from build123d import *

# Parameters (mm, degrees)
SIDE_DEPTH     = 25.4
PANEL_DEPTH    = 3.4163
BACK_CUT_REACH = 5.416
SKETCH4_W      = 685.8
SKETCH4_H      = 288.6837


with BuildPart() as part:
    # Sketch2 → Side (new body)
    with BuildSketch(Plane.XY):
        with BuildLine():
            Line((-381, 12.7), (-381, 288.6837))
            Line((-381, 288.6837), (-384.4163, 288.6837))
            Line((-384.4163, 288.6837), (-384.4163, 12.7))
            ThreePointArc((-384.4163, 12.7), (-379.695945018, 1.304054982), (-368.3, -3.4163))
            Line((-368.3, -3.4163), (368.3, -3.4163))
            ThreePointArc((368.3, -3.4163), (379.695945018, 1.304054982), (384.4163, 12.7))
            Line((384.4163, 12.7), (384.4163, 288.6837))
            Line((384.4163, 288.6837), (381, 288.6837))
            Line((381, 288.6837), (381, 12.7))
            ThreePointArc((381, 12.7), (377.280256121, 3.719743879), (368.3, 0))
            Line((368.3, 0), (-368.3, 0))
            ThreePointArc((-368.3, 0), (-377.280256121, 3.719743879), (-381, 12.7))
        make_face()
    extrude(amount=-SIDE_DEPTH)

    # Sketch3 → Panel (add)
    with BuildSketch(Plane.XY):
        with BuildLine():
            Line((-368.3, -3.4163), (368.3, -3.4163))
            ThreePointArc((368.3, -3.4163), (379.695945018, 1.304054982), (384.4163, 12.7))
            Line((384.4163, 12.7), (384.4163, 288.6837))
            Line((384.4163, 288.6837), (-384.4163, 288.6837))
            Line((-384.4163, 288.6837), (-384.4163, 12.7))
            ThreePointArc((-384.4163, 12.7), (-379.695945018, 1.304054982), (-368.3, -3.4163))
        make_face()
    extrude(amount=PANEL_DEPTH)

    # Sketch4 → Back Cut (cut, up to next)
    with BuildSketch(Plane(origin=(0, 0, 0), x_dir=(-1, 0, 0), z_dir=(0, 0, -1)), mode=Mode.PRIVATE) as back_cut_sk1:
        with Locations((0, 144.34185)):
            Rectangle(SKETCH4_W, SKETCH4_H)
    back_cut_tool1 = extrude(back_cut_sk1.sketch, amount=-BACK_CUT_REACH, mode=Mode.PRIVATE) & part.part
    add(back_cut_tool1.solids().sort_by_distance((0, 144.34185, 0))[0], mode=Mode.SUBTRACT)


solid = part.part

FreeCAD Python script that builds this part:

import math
import FreeCAD as App
import Part
import Sketcher
Q = App.Units.Quantity


def add_polygon(sketch, points):
    """Adds a closed chain of lines whose ends are joined by coincident constraints."""
    first, n = sketch.GeometryCount, len(points)
    for a, b in zip(points, points[1:] + points[:1]):
        sketch.addGeometry(Part.LineSegment(App.Vector(*a, 0), App.Vector(*b, 0)), False)
    for i in range(n):
        sketch.addConstraint(Sketcher.Constraint("Coincident", first + i, 2, first + (i + 1) % n, 1))

doc = App.newDocument("Part")
body = doc.addObject("PartDesign::Body", "Body")

sketch1 = body.newObject("Sketcher::SketchObject", "Sketch")
sketch1.AttachmentSupport = (doc.getObject("XY_Plane"), [""])
sketch1.MapMode = "FlatFace"
sketch1.addGeometry(Part.LineSegment(App.Vector(-381, 12.7, 0), App.Vector(-381, 288.6837, 0)), False)
sketch1.addGeometry(Part.LineSegment(App.Vector(-381, 288.6837, 0), App.Vector(-384.4163, 288.6837, 0)), False)
sketch1.addGeometry(Part.LineSegment(App.Vector(-384.4163, 288.6837, 0), App.Vector(-384.4163, 12.7, 0)), False)
sketch1.addGeometry(Part.ArcOfCircle(Part.Circle(App.Vector(-368.3, 12.7, 0), App.Vector(0, 0, 1), 16.1163), math.radians(180), math.radians(270)), False)
sketch1.addGeometry(Part.LineSegment(App.Vector(-368.3, -3.4163, 0), App.Vector(368.3, -3.4163, 0)), False)
sketch1.addGeometry(Part.ArcOfCircle(Part.Circle(App.Vector(368.3, 12.7, 0), App.Vector(0, 0, 1), 16.1163), math.radians(-90), math.radians(0)), False)
sketch1.addGeometry(Part.LineSegment(App.Vector(384.4163, 12.7, 0), App.Vector(384.4163, 288.6837, 0)), False)
sketch1.addGeometry(Part.LineSegment(App.Vector(384.4163, 288.6837, 0), App.Vector(381, 288.6837, 0)), False)
sketch1.addGeometry(Part.LineSegment(App.Vector(381, 288.6837, 0), App.Vector(381, 12.7, 0)), False)
sketch1.addGeometry(Part.ArcOfCircle(Part.Circle(App.Vector(368.3, 12.7, 0), App.Vector(0, 0, 1), 12.7), math.radians(-90), math.radians(0)), False)
sketch1.addGeometry(Part.LineSegment(App.Vector(368.3, 0, 0), App.Vector(-368.3, 0, 0)), False)
sketch1.addGeometry(Part.ArcOfCircle(Part.Circle(App.Vector(-368.3, 12.7, 0), App.Vector(0, 0, 1), 12.7), math.radians(180), math.radians(270)), False)
sketch1.addConstraint(Sketcher.Constraint("Coincident", 0, 2, 1, 1))
sketch1.addConstraint(Sketcher.Constraint("Coincident", 1, 2, 2, 1))
sketch1.addConstraint(Sketcher.Constraint("Tangent", 2, 2, 3, 1))
sketch1.addConstraint(Sketcher.Constraint("Tangent", 3, 2, 4, 1))
sketch1.addConstraint(Sketcher.Constraint("Tangent", 4, 2, 5, 1))
sketch1.addConstraint(Sketcher.Constraint("Tangent", 5, 2, 6, 1))
sketch1.addConstraint(Sketcher.Constraint("Coincident", 6, 2, 7, 1))
sketch1.addConstraint(Sketcher.Constraint("Coincident", 7, 2, 8, 1))
sketch1.addConstraint(Sketcher.Constraint("Tangent", 8, 2, 9, 2))
sketch1.addConstraint(Sketcher.Constraint("Tangent", 9, 1, 10, 1))
sketch1.addConstraint(Sketcher.Constraint("Tangent", 10, 2, 11, 2))
sketch1.addConstraint(Sketcher.Constraint("Tangent", 11, 1, 0, 1))
sketch1.addConstraint(Sketcher.Constraint("Vertical", 0))
sketch1.addConstraint(Sketcher.Constraint("Horizontal", 1))
sketch1.addConstraint(Sketcher.Constraint("Vertical", 2))
sketch1.addConstraint(Sketcher.Constraint("Horizontal", 4))
sketch1.addConstraint(Sketcher.Constraint("Vertical", 6))
sketch1.addConstraint(Sketcher.Constraint("Horizontal", 7))
sketch1.addConstraint(Sketcher.Constraint("Vertical", 8))
sketch1.addConstraint(Sketcher.Constraint("Horizontal", 10))
sketch1.addConstraint(Sketcher.Constraint("Coincident", 9, 3, 5, 3))
sketch1.addConstraint(Sketcher.Constraint("Coincident", 11, 3, 3, 3))
sketch1.addConstraint(Sketcher.Constraint("Equal", 3, 5))
sketch1.addConstraint(Sketcher.Constraint("Symmetric", 9, 1, 10, 2, -1, 1))
sketch1.addConstraint(Sketcher.Constraint("Horizontal", 1, 2, 6, 2))
sketch1.addConstraint(Sketcher.Constraint("Radius", 9, Q("0.5 in")))
sketch1.addConstraint(Sketcher.Constraint("DistanceX", 4, 1, 4, 2, Q("29 in")))
sketch1.addConstraint(Sketcher.Constraint("Radius", 3, Q("0.6345 in")))
sketch1.addConstraint(Sketcher.Constraint("DistanceY", 3, 2, 0, 2, Q("11.5 in")))
pad1 = body.newObject("PartDesign::Pad", "Pad")
pad1.Profile = sketch1
pad1.Length = Q("1 in")
pad1.Reversed = True

sketch2 = body.newObject("Sketcher::SketchObject", "Sketch001")
sketch2.AttachmentSupport = (doc.getObject("XY_Plane"), [""])
sketch2.MapMode = "FlatFace"
sketch2.addGeometry(Part.LineSegment(App.Vector(-368.3, -3.4163, 0), App.Vector(368.3, -3.4163, 0)), False)
sketch2.addGeometry(Part.ArcOfCircle(Part.Circle(App.Vector(368.3, 12.7, 0), App.Vector(0, 0, 1), 16.1163), math.radians(-90), math.radians(0)), False)
sketch2.addGeometry(Part.LineSegment(App.Vector(384.4163, 12.7, 0), App.Vector(384.4163, 288.6837, 0)), False)
sketch2.addGeometry(Part.LineSegment(App.Vector(384.4163, 288.6837, 0), App.Vector(-384.4163, 288.6837, 0)), False)
sketch2.addGeometry(Part.LineSegment(App.Vector(-384.4163, 288.6837, 0), App.Vector(-384.4163, 12.7, 0)), False)
sketch2.addGeometry(Part.ArcOfCircle(Part.Circle(App.Vector(-368.3, 12.7, 0), App.Vector(0, 0, 1), 16.1163), math.radians(180), math.radians(270)), False)
sketch2.addConstraint(Sketcher.Constraint("Tangent", 0, 2, 1, 1))
sketch2.addConstraint(Sketcher.Constraint("Tangent", 1, 2, 2, 1))
sketch2.addConstraint(Sketcher.Constraint("Coincident", 2, 2, 3, 1))
sketch2.addConstraint(Sketcher.Constraint("Coincident", 3, 2, 4, 1))
sketch2.addConstraint(Sketcher.Constraint("Tangent", 4, 2, 5, 1))
sketch2.addConstraint(Sketcher.Constraint("Tangent", 5, 2, 0, 1))
sketch2.addConstraint(Sketcher.Constraint("Horizontal", 0))
sketch2.addConstraint(Sketcher.Constraint("Vertical", 2))
sketch2.addConstraint(Sketcher.Constraint("Horizontal", 3))
sketch2.addConstraint(Sketcher.Constraint("Vertical", 4))
sketch2.addConstraint(Sketcher.Constraint("Equal", 1, 5))
sketch2.addConstraint(Sketcher.Constraint("DistanceX", 0, 1, 0, 2, Q("29 in")))
sketch2.addConstraint(Sketcher.Constraint("DistanceX", -1, 1, 1, 3, Q("14.5 in")))
sketch2.addConstraint(Sketcher.Constraint("DistanceY", -1, 1, 1, 3, Q("0.5 in")))
sketch2.addConstraint(Sketcher.Constraint("Radius", 1, Q("0.6345 in")))
sketch2.addConstraint(Sketcher.Constraint("DistanceY", 0, 2, 2, 2, Q("11.5 in")))
pad2 = body.newObject("PartDesign::Pad", "Pad001")
pad2.Profile = sketch2
pad2.Length = Q("0.1345 in")

sketch3 = body.newObject("Sketcher::SketchObject", "Sketch002")
sketch3.AttachmentSupport = (doc.getObject("XY_Plane"), [""])
sketch3.MapMode = "FlatFace"
add_polygon(sketch3, [(342.9, 288.6837), (342.9, 0), (-342.9, 0), (-342.9, 288.6837)])
sketch3.addConstraint(Sketcher.Constraint("Vertical", 0))
sketch3.addConstraint(Sketcher.Constraint("Horizontal", 1))
sketch3.addConstraint(Sketcher.Constraint("Vertical", 2))
sketch3.addConstraint(Sketcher.Constraint("Horizontal", 3))
sketch3.addConstraint(Sketcher.Constraint("Symmetric", 0, 2, 1, 2, -1, 1))
sketch3.addConstraint(Sketcher.Constraint("DistanceX", 1, 2, 1, 1, Q("27 in")))
sketch3.addConstraint(Sketcher.Constraint("DistanceY", 0, 2, 0, 1, Q("11.3655 in")))
pocket1 = body.newObject("PartDesign::Pocket", "Pocket")
pocket1.Profile = sketch3
pocket1.Type = "UpToFirst"
pocket1.Reversed = True

doc.recompute()
